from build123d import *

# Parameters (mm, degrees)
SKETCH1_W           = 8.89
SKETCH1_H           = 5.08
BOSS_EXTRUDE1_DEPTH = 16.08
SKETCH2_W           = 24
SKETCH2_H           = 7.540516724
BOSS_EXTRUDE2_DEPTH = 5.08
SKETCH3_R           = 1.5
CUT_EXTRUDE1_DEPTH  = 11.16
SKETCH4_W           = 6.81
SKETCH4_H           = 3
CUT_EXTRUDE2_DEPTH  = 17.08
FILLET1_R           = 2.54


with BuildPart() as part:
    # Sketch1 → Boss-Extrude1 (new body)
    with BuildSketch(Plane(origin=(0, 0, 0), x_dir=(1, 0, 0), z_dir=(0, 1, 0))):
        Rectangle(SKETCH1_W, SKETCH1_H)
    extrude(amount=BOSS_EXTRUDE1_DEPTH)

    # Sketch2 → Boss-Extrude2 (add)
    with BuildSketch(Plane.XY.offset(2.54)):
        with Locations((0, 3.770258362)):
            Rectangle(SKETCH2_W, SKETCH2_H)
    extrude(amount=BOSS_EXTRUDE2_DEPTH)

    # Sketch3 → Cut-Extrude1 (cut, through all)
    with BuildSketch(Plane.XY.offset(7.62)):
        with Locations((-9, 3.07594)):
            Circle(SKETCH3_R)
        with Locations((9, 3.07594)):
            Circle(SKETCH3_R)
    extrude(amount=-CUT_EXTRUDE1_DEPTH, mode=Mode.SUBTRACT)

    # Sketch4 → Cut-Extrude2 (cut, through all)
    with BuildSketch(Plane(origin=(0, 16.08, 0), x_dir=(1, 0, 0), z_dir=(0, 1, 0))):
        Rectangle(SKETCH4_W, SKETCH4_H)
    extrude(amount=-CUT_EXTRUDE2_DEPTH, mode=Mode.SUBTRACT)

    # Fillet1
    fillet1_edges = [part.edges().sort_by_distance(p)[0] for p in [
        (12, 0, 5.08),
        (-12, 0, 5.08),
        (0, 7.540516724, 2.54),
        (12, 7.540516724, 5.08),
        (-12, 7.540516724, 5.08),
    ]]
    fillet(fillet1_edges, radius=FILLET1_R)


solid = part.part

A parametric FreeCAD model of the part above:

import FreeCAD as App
import Part
import Sketcher

V = App.Vector
Q = App.Units.Quantity


def edges_at(feature, points):
    """Names of the edges that pass closest to the given points."""
    edges = feature.Shape.Edges
    near = lambda p: min(range(len(edges)), key=lambda i: edges[i].distToShape(Part.Vertex(*p))[0])
    return sorted({f"Edge{near(p) + 1}" for p in points})


def add_polygon(sketch, points):
    """Adds a closed chain of lines whose ends are joined by coincident constraints."""
    first, n = sketch.GeometryCount, len(points)
    for a, b in zip(points, points[1:] + points[:1]):
        sketch.addGeometry(Part.LineSegment(App.Vector(*a, 0), App.Vector(*b, 0)), False)
    for i in range(n):
        sketch.addConstraint(Sketcher.Constraint("Coincident", first + i, 2, first + (i + 1) % n, 1))

doc = App.newDocument("Part")
params = doc.addObject("Spreadsheet::Sheet", "Params")
for row, (alias, value) in enumerate([
    ("sketch1_height", "0.2 in"),
    ("sketch1_width", "0.35 in"),
    ("pad1_length", "16.08 mm"),
    ("pad2_length", "0.2 in"),
    ("fillet_radius", "0.1 in"),
], start=1):
    params.set(f"A{row}", alias)
    params.set(f"B{row}", "=" + value)
    params.setAlias(f"B{row}", alias)

body = doc.addObject("PartDesign::Body", "Body")

sketch1 = body.newObject("Sketcher::SketchObject", "Sketch")
sketch1.AttachmentSupport = (doc.getObject("XZ_Plane"), [""])
sketch1.MapMode = "FlatFace"
add_polygon(sketch1, [(-4.445, -2.54), (-4.445, 2.54), (4.445, 2.54), (4.445, -2.54)])
sketch1.addConstraint([
    Sketcher.Constraint("Vertical", 0),
    Sketcher.Constraint("Horizontal", 1),
    Sketcher.Constraint("Vertical", 2),
    Sketcher.Constraint("Horizontal", 3),
    Sketcher.Constraint("Symmetric", 0, 2, 2, 2, -1, 1),
    Sketcher.Constraint("DistanceY", 0, 1, 0, 2, Q("0.2 in")),
    Sketcher.Constraint("DistanceX", 1, 1, 1, 2, Q("0.35 in")),
])
sketch1.setExpression("Constraints[9]", "Params.sketch1_height")
sketch1.setExpression("Constraints[10]", "Params.sketch1_width")
pad1 = body.newObject("PartDesign::Pad", "Pad")
pad1.Profile = sketch1
pad1.setExpression("Length", "Params.pad1_length")
pad1.Reversed = True

sketch2 = body.newObject("Sketcher::SketchObject", "Sketch001")
sketch2.AttachmentSupport = (doc.getObject("XY_Plane"), [""])
sketch2.MapMode = "FlatFace"
sketch2.AttachmentOffset = App.Placement(V(0, 0, 0.1 * 25.4), App.Rotation())
add_polygon(sketch2, [(-12, 7.540517), (-12, 0), (12, 0), (12, 7.540517)])
sketch2.addConstraint([
    Sketcher.Constraint("Vertical", 0),
    Sketcher.Constraint("Horizontal", 1),
    Sketcher.Constraint("Vertical", 2),
    Sketcher.Constraint("Horizontal", 3),
    Sketcher.Constraint("Symmetric", 0, 2, 1, 2, -1, 1),
    Sketcher.Constraint("DistanceX", 1, 1, 1, 2, 24.0),
    Sketcher.Constraint("DistanceY", 0, 2, 0, 1, 7.540517),
])
pad2 = body.newObject("PartDesign::Pad", "Pad001")
pad2.Profile = sketch2
pad2.setExpression("Length", "Params.pad2_length")

sketch3 = body.newObject("Sketcher::SketchObject", "Sketch002")
sketch3.AttachmentSupport = (doc.getObject("XY_Plane"), [""])
sketch3.MapMode = "FlatFace"
sketch3.AttachmentOffset = App.Placement(V(0, 0, 0.3 * 25.4), App.Rotation())
sketch3.addGeometry([
    Part.Circle(V(-9, 3.07594, 0), V(0, 0, 1), 1.5),
    Part.Circle(V(9, 3.07594, 0), V(0, 0, 1), 1.5),
], False)
sketch3.addConstraint([
    Sketcher.Constraint("Equal", 0, 1),
    Sketcher.Constraint("Symmetric", 0, 3, 1, 3, -2),
    Sketcher.Constraint("Diameter", 0, 3.0),
    Sketcher.Constraint("DistanceY", -1, 1, 0, 3, Q("0.1211 in")),
    Sketcher.Constraint("DistanceX", 0, 3, -1, 1, 9.0),
])
pocket1 = body.newObject("PartDesign::Pocket", "Pocket")
pocket1.Profile = sketch3
pocket1.Type = "ThroughAll"

sketch4 = body.newObject("Sketcher::SketchObject", "Sketch003")
sketch4.AttachmentSupport = (doc.getObject("XZ_Plane"), [""])
sketch4.MapMode = "FlatFace"
sketch4.AttachmentOffset = App.Placement(V(0, 0, -16.08), App.Rotation())
add_polygon(sketch4, [(-3.405, -1.5), (-3.405, 1.5), (3.405, 1.5), (3.405, -1.5)])
sketch4.addConstraint([
    Sketcher.Constraint("Vertical", 0),
    Sketcher.Constraint("Horizontal", 1),
    Sketcher.Constraint("Vertical", 2),
    Sketcher.Constraint("Horizontal", 3),
    Sketcher.Constraint("Symmetric", 0, 2, 2, 2, -1, 1),
    Sketcher.Constraint("DistanceX", 1, 1, 1, 2, 6.81),
    Sketcher.Constraint("DistanceY", 0, 1, 0, 2, 3.0),
])
pocket2 = body.newObject("PartDesign::Pocket", "Pocket001")
pocket2.Profile = sketch4
pocket2.Type = "ThroughAll"
pocket2.Reversed = True
doc.recompute()

fillet = body.newObject("PartDesign::Fillet", "Fillet")
fillet.Base = (pocket2, edges_at(pocket2, [
    (12, 0, 5.08),
    (-12, 0, 5.08),
    (0, 7.541, 2.54),
    (12, 7.541, 5.08),
    (-12, 7.541, 5.08),
]))
fillet.setExpression("Radius", "Params.fillet_radius")

doc.recompute()
